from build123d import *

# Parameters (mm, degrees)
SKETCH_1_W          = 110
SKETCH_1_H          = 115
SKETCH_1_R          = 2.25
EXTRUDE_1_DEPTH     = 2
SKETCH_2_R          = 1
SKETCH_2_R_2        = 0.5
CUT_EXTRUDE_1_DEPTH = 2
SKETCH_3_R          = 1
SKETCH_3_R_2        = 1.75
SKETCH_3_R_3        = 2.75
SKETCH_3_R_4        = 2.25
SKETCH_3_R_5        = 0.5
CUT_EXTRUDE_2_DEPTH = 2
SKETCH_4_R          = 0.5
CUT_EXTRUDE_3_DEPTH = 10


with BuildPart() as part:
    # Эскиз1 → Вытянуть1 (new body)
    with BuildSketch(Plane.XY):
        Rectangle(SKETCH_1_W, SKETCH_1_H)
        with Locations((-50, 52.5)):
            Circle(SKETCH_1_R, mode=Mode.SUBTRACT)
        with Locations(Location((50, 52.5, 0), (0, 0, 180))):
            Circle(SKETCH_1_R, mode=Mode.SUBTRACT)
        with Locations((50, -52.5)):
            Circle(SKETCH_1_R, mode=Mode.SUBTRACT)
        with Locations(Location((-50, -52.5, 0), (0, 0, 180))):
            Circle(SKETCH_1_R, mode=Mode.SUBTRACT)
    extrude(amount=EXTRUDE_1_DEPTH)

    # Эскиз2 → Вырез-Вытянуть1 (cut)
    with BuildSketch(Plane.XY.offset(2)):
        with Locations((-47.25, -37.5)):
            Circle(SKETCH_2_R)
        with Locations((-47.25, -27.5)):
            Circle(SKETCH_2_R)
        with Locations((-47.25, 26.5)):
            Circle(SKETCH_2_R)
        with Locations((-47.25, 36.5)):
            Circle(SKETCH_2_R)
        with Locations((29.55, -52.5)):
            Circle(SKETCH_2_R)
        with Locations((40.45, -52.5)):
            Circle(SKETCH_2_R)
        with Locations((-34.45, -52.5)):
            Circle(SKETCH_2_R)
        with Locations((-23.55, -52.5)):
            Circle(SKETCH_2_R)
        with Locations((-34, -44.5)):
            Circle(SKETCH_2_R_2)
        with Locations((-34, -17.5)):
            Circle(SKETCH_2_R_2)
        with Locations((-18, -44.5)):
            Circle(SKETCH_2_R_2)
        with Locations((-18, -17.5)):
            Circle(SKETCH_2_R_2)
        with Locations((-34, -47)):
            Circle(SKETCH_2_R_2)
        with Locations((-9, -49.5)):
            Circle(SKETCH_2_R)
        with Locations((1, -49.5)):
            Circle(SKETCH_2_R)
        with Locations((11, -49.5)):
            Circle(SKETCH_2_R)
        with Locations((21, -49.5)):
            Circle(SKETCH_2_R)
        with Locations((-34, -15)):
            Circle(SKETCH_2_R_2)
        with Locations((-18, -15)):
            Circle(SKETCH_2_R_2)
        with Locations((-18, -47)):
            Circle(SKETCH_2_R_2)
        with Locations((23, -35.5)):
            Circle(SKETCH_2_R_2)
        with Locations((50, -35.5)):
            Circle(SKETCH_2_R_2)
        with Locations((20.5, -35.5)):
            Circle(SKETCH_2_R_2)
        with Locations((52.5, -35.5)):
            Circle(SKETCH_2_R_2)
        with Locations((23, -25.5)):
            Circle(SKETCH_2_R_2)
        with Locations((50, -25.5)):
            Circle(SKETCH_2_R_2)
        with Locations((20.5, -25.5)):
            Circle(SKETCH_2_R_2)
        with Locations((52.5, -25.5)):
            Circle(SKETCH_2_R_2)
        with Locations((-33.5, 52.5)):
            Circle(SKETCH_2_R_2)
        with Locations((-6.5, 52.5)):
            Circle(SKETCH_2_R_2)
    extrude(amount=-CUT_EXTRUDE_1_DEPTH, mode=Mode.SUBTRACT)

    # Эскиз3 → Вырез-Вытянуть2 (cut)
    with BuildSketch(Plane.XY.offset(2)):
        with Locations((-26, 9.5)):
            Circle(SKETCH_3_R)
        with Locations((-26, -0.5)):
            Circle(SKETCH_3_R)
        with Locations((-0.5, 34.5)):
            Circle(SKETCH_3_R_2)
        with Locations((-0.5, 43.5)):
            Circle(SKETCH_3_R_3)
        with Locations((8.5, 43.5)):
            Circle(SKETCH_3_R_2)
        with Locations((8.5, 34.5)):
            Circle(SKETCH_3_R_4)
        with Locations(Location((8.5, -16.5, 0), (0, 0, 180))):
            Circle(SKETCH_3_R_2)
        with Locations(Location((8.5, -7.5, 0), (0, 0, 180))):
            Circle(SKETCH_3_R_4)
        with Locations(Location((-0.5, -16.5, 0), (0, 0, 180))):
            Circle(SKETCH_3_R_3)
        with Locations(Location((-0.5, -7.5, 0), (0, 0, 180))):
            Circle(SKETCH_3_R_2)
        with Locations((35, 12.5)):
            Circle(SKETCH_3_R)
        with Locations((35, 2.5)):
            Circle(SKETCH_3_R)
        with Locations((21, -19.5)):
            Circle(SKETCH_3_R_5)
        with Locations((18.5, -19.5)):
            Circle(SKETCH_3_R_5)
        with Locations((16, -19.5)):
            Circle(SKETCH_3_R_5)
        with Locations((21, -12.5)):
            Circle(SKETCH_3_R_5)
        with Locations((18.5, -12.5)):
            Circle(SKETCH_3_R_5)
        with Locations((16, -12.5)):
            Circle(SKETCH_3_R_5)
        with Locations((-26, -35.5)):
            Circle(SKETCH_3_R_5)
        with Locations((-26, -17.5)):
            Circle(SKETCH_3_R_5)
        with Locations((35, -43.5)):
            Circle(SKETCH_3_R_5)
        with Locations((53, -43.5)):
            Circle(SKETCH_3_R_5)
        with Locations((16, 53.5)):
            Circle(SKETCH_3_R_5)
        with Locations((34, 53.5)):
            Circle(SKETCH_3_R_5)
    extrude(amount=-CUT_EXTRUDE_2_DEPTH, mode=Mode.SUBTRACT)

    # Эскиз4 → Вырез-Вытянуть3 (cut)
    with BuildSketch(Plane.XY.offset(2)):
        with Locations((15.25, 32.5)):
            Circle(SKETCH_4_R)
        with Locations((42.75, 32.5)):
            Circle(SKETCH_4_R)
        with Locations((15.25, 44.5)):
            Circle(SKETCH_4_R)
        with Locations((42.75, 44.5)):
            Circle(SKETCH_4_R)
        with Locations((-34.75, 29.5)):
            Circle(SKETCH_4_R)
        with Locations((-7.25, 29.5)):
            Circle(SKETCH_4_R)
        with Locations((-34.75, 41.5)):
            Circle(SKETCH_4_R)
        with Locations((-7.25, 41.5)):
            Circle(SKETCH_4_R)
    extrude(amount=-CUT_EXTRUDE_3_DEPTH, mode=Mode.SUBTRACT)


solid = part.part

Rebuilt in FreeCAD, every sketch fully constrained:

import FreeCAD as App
import Part
import Sketcher
Q = App.Units.Quantity


def add_polygon(sketch, points):
    """Adds a closed chain of lines whose ends are joined by coincident constraints."""
    first, n = sketch.GeometryCount, len(points)
    for a, b in zip(points, points[1:] + points[:1]):
        sketch.addGeometry(Part.LineSegment(App.Vector(*a, 0), App.Vector(*b, 0)), False)
    for i in range(n):
        sketch.addConstraint(Sketcher.Constraint("Coincident", first + i, 2, first + (i + 1) % n, 1))

doc = App.newDocument("Part")
params = doc.addObject("Spreadsheet::Sheet", "Params")
for row, (alias, value) in enumerate([
    ("sketch1_diameter", "4.5 mm"),
    ("sketch1_width", "110 mm"),
    ("sketch1_height", "115 mm"),
    ("pad1_length", "2 mm"),
    ("sketch2_diameter", "2 mm"),
    ("sketch2_diameter2", "1 mm"),
    ("pocket1_length", "2 mm"),
    ("sketch3_diameter", "2 mm"),
    ("sketch3_diameter2", "1 mm"),
    ("sketch3_diameter3", "3.5 mm"),
    ("sketch3_diameter4", "5.5 mm"),
    ("sketch3_diameter5", "4.5 mm"),
    ("pocket2_length", "2 mm"),
    ("sketch4_diameter", "1 mm"),
    ("pocket3_length", "10 mm"),
], start=1):
    params.set(f"A{row}", alias)
    params.set(f"B{row}", "=" + value)
    params.setAlias(f"B{row}", alias)

body = doc.addObject("PartDesign::Body", "Body")

# Sketch on XY plane
sketch1 = body.newObject("Sketcher::SketchObject", "Sketch")
sketch1.AttachmentSupport = (doc.getObject("XY_Plane"), [""])
sketch1.MapMode = "FlatFace"
add_polygon(sketch1, [(-55, 57.5), (-55, -57.5), (55, -57.5), (55, 57.5)])  # lines 0-3
sketch1.addGeometry(Part.Circle(App.Vector(-50, -52.5, 0), App.Vector(0, 0, 1), 2.2), False)  # 4
sketch1.addGeometry(Part.Circle(App.Vector(50, -52.5, 0), App.Vector(0, 0, 1), 2.2), False)  # 5
sketch1.addGeometry(Part.Circle(App.Vector(-50, 52.5, 0), App.Vector(0, 0, 1), 2.2), False)  # 6
sketch1.addGeometry(Part.Circle(App.Vector(50, 52.5, 0), App.Vector(0, 0, 1), 2.2), False)  # 7
sketch1.addConstraint([
    Sketcher.Constraint("Vertical", 0),
    Sketcher.Constraint("Horizontal", 1),
    Sketcher.Constraint("Vertical", 2),
    Sketcher.Constraint("Horizontal", 3),
    Sketcher.Constraint("Equal", 4, 5),
    Sketcher.Constraint("Equal", 5, 6),
    Sketcher.Constraint("Equal", 6, 7),
    Sketcher.Constraint("Symmetric", 5, 3, 6, 3, -1, 1),
    Sketcher.Constraint("Symmetric", 4, 3, 7, 3, -1, 1),
    Sketcher.Constraint("Symmetric", 0, 2, 2, 2, -1, 1),
    Sketcher.Constraint("Symmetric", 4, 3, 5, 3, -2),
    Sketcher.Constraint("Diameter", 4, Q("4.5 mm")),
    Sketcher.Constraint("DistanceX", 1, 1, 1, 2, Q("110 mm")),
    Sketcher.Constraint("DistanceY", 0, 2, 0, 1, Q("115 mm")),
    Sketcher.Constraint("DistanceX", 4, 3, -1, 1, Q("50 mm")),
    Sketcher.Constraint("DistanceY", 4, 3, 6, 3, Q("105 mm")),
])
sketch1.setExpression("Constraints[15]", "Params.sketch1_diameter")
sketch1.setExpression("Constraints[16]", "Params.sketch1_width")
sketch1.setExpression("Constraints[17]", "Params.sketch1_height")
pad1 = body.newObject("PartDesign::Pad", "Pad")
pad1.Profile = sketch1
pad1.setExpression("Length", "Params.pad1_length")

# Sketch on XY plane
sketch2 = body.newObject("Sketcher::SketchObject", "Sketch001")
sketch2.AttachmentSupport = (doc.getObject("XY_Plane"), [""])
sketch2.MapMode = "FlatFace"
sketch2.AttachmentOffset = App.Placement(App.Vector(0, 0, 2), App.Rotation())
sketch2.addGeometry([
    Part.Circle(App.Vector(-47.2, -37.5, 0), App.Vector(0, 0, 1), 1),  # 0
    Part.Circle(App.Vector(-47.2, -27.5, 0), App.Vector(0, 0, 1), 1),  # 1
    Part.Circle(App.Vector(-47.2, 26.5, 0), App.Vector(0, 0, 1), 1),  # 2
    Part.Circle(App.Vector(-47.2, 36.5, 0), App.Vector(0, 0, 1), 1),  # 3
    Part.Circle(App.Vector(29.6, -52.5, 0), App.Vector(0, 0, 1), 1),  # 4
    Part.Circle(App.Vector(40.5, -52.5, 0), App.Vector(0, 0, 1), 1),  # 5
    Part.Circle(App.Vector(-34.5, -52.5, 0), App.Vector(0, 0, 1), 1),  # 6
    Part.Circle(App.Vector(-23.6, -52.5, 0), App.Vector(0, 0, 1), 1),  # 7
    Part.Circle(App.Vector(-34, -44.5, 0), App.Vector(0, 0, 1), 0.5),  # 8
    Part.Circle(App.Vector(-34, -17.5, 0), App.Vector(0, 0, 1), 0.5),  # 9
    Part.Circle(App.Vector(-18, -44.5, 0), App.Vector(0, 0, 1), 0.5),  # 10
    Part.Circle(App.Vector(-18, -17.5, 0), App.Vector(0, 0, 1), 0.5),  # 11
    Part.Circle(App.Vector(-34, -47, 0), App.Vector(0, 0, 1), 0.5),  # 12
    Part.Circle(App.Vector(-9, -49.5, 0), App.Vector(0, 0, 1), 1),  # 13
    Part.Circle(App.Vector(1, -49.5, 0), App.Vector(0, 0, 1), 1),  # 14
    Part.Circle(App.Vector(11, -49.5, 0), App.Vector(0, 0, 1), 1),  # 15
    Part.Circle(App.Vector(21, -49.5, 0), App.Vector(0, 0, 1), 1),  # 16
    Part.Circle(App.Vector(-34, -15, 0), App.Vector(0, 0, 1), 0.5),  # 17
    Part.Circle(App.Vector(-18, -15, 0), App.Vector(0, 0, 1), 0.5),  # 18
    Part.Circle(App.Vector(-18, -47, 0), App.Vector(0, 0, 1), 0.5),  # 19
    Part.Circle(App.Vector(23, -35.5, 0), App.Vector(0, 0, 1), 0.5),  # 20
    Part.Circle(App.Vector(50, -35.5, 0), App.Vector(0, 0, 1), 0.5),  # 21
    Part.Circle(App.Vector(20.5, -35.5, 0), App.Vector(0, 0, 1), 0.5),  # 22
    Part.Circle(App.Vector(52.5, -35.5, 0), App.Vector(0, 0, 1), 0.5),  # 23
    Part.Circle(App.Vector(23, -25.5, 0), App.Vector(0, 0, 1), 0.5),  # 24
    Part.Circle(App.Vector(50, -25.5, 0), App.Vector(0, 0, 1), 0.5),  # 25
    Part.Circle(App.Vector(20.5, -25.5, 0), App.Vector(0, 0, 1), 0.5),  # 26
    Part.Circle(App.Vector(52.5, -25.5, 0), App.Vector(0, 0, 1), 0.5),  # 27
    Part.Circle(App.Vector(-33.5, 52.5, 0), App.Vector(0, 0, 1), 0.5),  # 28
    Part.Circle(App.Vector(-6.5, 52.5, 0), App.Vector(0, 0, 1), 0.5),  # 29
], False)
sketch2.addConstraint([
    Sketcher.Constraint("Equal", 0, 1),
    Sketcher.Constraint("Equal", 1, 2),
    Sketcher.Constraint("Equal", 2, 3),
    Sketcher.Constraint("Equal", 3, 4),
    Sketcher.Constraint("Equal", 4, 5),
    Sketcher.Constraint("Equal", 5, 6),
    Sketcher.Constraint("Equal", 6, 7),
    Sketcher.Constraint("Equal", 8, 9),
    Sketcher.Constraint("Equal", 9, 10),
    Sketcher.Constraint("Equal", 10, 11),
    Sketcher.Constraint("Equal", 11, 12),
    Sketcher.Constraint("Equal", 7, 13),
    Sketcher.Constraint("Equal", 13, 14),
    Sketcher.Constraint("Equal", 14, 15),
    Sketcher.Constraint("Equal", 15, 16),
    Sketcher.Constraint("Equal", 12, 17),
    Sketcher.Constraint("Equal", 17, 18),
    Sketcher.Constraint("Equal", 18, 19),
    Sketcher.Constraint("Equal", 19, 20),
    Sketcher.Constraint("Equal", 20, 21),
    Sketcher.Constraint("Equal", 21, 22),
    Sketcher.Constraint("Equal", 22, 23),
    Sketcher.Constraint("Equal", 23, 24),
    Sketcher.Constraint("Equal", 24, 25),
    Sketcher.Constraint("Equal", 25, 26),
    Sketcher.Constraint("Equal", 26, 27),
    Sketcher.Constraint("Equal", 27, 28),
    Sketcher.Constraint("Equal", 28, 29),
    Sketcher.Constraint("Horizontal", 4, 3, 5, 3),
    Sketcher.Constraint("Horizontal", 5, 3, 6, 3),
    Sketcher.Constraint("Horizontal", 6, 3, 7, 3),
    Sketcher.Constraint("Horizontal", 8, 3, 10, 3),
    Sketcher.Constraint("Horizontal", 9, 3, 11, 3),
    Sketcher.Constraint("Horizontal", 13, 3, 14, 3),
    Sketcher.Constraint("Horizontal", 14, 3, 15, 3),
    Sketcher.Constraint("Horizontal", 15, 3, 16, 3),
    Sketcher.Constraint("Horizontal", 17, 3, 18, 3),
    Sketcher.Constraint("Horizontal", 12, 3, 19, 3),
    Sketcher.Constraint("Horizontal", 20, 3, 21, 3),
    Sketcher.Constraint("Horizontal", 21, 3, 22, 3),
    Sketcher.Constraint("Horizontal", 22, 3, 23, 3),
    Sketcher.Constraint("Horizontal", 24, 3, 25, 3),
    Sketcher.Constraint("Horizontal", 25, 3, 26, 3),
    Sketcher.Constraint("Horizontal", 26, 3, 27, 3),
    Sketcher.Constraint("Horizontal", 28, 3, 29, 3),
    Sketcher.Constraint("Vertical", 0, 3, 1, 3),
    Sketcher.Constraint("Vertical", 1, 3, 2, 3),
    Sketcher.Constraint("Vertical", 2, 3, 3, 3),
    Sketcher.Constraint("Vertical", 8, 3, 9, 3),
    Sketcher.Constraint("Vertical", 10, 3, 11, 3),
    Sketcher.Constraint("Vertical", 9, 3, 12, 3),
    Sketcher.Constraint("Vertical", 12, 3, 17, 3),
    Sketcher.Constraint("Vertical", 11, 3, 18, 3),
    Sketcher.Constraint("Vertical", 18, 3, 19, 3),
    Sketcher.Constraint("Vertical", 20, 3, 24, 3),
    Sketcher.Constraint("Vertical", 21, 3, 25, 3),
    Sketcher.Constraint("Vertical", 22, 3, 26, 3),
    Sketcher.Constraint("Vertical", 23, 3, 27, 3),
    Sketcher.Constraint("Diameter", 0, Q("2 mm")),
    Sketcher.Constraint("Diameter", 8, Q("1 mm")),
    Sketcher.Constraint("DistanceX", 8, 3, -1, 1, Q("34 mm")),
    Sketcher.Constraint("DistanceX", 10, 3, -1, 1, Q("18 mm")),
    Sketcher.Constraint("DistanceY", 12, 3, -1, 1, Q("47 mm")),
    Sketcher.Constraint("DistanceX", 13, 3, -1, 1, Q("9 mm")),
    Sketcher.Constraint("DistanceX", -1, 1, 14, 3, Q("1 mm")),
    Sketcher.Constraint("DistanceX", -1, 1, 15, 3, Q("11 mm")),
    Sketcher.Constraint("DistanceX", -1, 1, 16, 3, Q("21 mm")),
    Sketcher.Constraint("DistanceY", 17, 3, -1, 1, Q("15 mm")),
    Sketcher.Constraint("DistanceX", -1, 1, 20, 3, Q("23 mm")),
    Sketcher.Constraint("DistanceX", -1, 1, 21, 3, Q("50 mm")),
    Sketcher.Constraint("DistanceY", 0, 3, 1, 3, Q("10 mm")),
    Sketcher.Constraint("DistanceY", 1, 3, 2, 3, Q("54 mm")),
    Sketcher.Constraint("DistanceY", 2, 3, 3, 3, Q("10 mm")),
    Sketcher.Constraint("DistanceY", 4, 3, 0, 3, Q("15 mm")),
    Sketcher.Constraint("DistanceX", 6, 3, 4, 3, Q("64 mm")),
    Sketcher.Constraint("DistanceX", 7, 3, 5, 3, Q("64 mm")),
    Sketcher.Constraint("DistanceY", 6, 3, 8, 3, Q("8 mm")),
    Sketcher.Constraint("DistanceY", 1, 3, 9, 3, Q("10 mm")),
    Sketcher.Constraint("DistanceY", 13, 3, 10, 3, Q("5 mm")),
    Sketcher.Constraint("DistanceY", 16, 3, 20, 3, Q("14 mm")),
    Sketcher.Constraint("DistanceX", 22, 3, 23, 3, Q("32 mm")),
    Sketcher.Constraint("DistanceY", 20, 3, 24, 3, Q("10 mm")),
    Sketcher.Constraint("DistanceY", 3, 3, 28, 3, Q("16 mm")),
    Sketcher.Constraint("DistanceX", 28, 3, 29, 3, Q("27 mm")),
    Sketcher.Constraint("DistanceY", 0, 3, -1, 1, Q("37.5 mm")),
    Sketcher.Constraint("DistanceX", -1, 1, 22, 3, Q("20.5 mm")),
    Sketcher.Constraint("DistanceX", 28, 3, -1, 1, Q("33.5 mm")),
    Sketcher.Constraint("DistanceX", 0, 3, 4, 3, Q("76.8 mm")),
    Sketcher.Constraint("DistanceX", 4, 3, 5, 3, Q("10.9 mm")),
    Sketcher.Constraint("DistanceX", 0, 3, -1, 1, Q("47.25 mm")),
])
sketch2.setExpression("Constraints[58]", "Params.sketch2_diameter")
sketch2.setExpression("Constraints[59]", "Params.sketch2_diameter2")
pocket1 = body.newObject("PartDesign::Pocket", "Pocket")
pocket1.Profile = sketch2
pocket1.setExpression("Length", "Params.pocket1_length")

# Sketch on XY plane
sketch3 = body.newObject("Sketcher::SketchObject", "Sketch002")
sketch3.AttachmentSupport = (doc.getObject("XY_Plane"), [""])
sketch3.MapMode = "FlatFace"
sketch3.AttachmentOffset = App.Placement(App.Vector(0, 0, 2), App.Rotation())
sketch3.addGeometry([
    Part.Circle(App.Vector(-26, 9.5, 0), App.Vector(0, 0, 1), 1),  # 0
    Part.Circle(App.Vector(-26, -0.5, 0), App.Vector(0, 0, 1), 1),  # 1
    Part.Circle(App.Vector(-0.5, 34.5, 0), App.Vector(0, 0, 1), 1.8),  # 2
    Part.Circle(App.Vector(-0.5, 43.5, 0), App.Vector(0, 0, 1), 2.8),  # 3
    Part.Circle(App.Vector(8.5, 43.5, 0), App.Vector(0, 0, 1), 1.8),  # 4
    Part.Circle(App.Vector(8.5, 34.5, 0), App.Vector(0, 0, 1), 2.2),  # 5
    Part.Circle(App.Vector(8.5, -16.5, 0), App.Vector(0, 0, 1), 1.8),  # 6
    Part.Circle(App.Vector(8.5, -7.5, 0), App.Vector(0, 0, 1), 2.2),  # 7
    Part.Circle(App.Vector(-0.5, -16.5, 0), App.Vector(0, 0, 1), 2.8),  # 8
    Part.Circle(App.Vector(-0.5, -7.5, 0), App.Vector(0, 0, 1), 1.8),  # 9
    Part.Circle(App.Vector(35, 12.5, 0), App.Vector(0, 0, 1), 1),  # 10
    Part.Circle(App.Vector(35, 2.5, 0), App.Vector(0, 0, 1), 1),  # 11
    Part.Circle(App.Vector(21, -19.5, 0), App.Vector(0, 0, 1), 0.5),  # 12
    Part.Circle(App.Vector(18.5, -19.5, 0), App.Vector(0, 0, 1), 0.5),  # 13
    Part.Circle(App.Vector(16, -19.5, 0), App.Vector(0, 0, 1), 0.5),  # 14
    Part.Circle(App.Vector(21, -12.5, 0), App.Vector(0, 0, 1), 0.5),  # 15
    Part.Circle(App.Vector(18.5, -12.5, 0), App.Vector(0, 0, 1), 0.5),  # 16
    Part.Circle(App.Vector(16, -12.5, 0), App.Vector(0, 0, 1), 0.5),  # 17
    Part.Circle(App.Vector(-26, -35.5, 0), App.Vector(0, 0, 1), 0.5),  # 18
    Part.Circle(App.Vector(-26, -17.5, 0), App.Vector(0, 0, 1), 0.5),  # 19
    Part.Circle(App.Vector(35, -43.5, 0), App.Vector(0, 0, 1), 0.5),  # 20
    Part.Circle(App.Vector(53, -43.5, 0), App.Vector(0, 0, 1), 0.5),  # 21
    Part.Circle(App.Vector(16, 53.5, 0), App.Vector(0, 0, 1), 0.5),  # 22
    Part.Circle(App.Vector(34, 53.5, 0), App.Vector(0, 0, 1), 0.5),  # 23
], False)
sketch3.addConstraint([
    Sketcher.Constraint("Equal", 0, 1),
    Sketcher.Constraint("Equal", 2, 4),
    Sketcher.Constraint("Equal", 4, 6),
    Sketcher.Constraint("Equal", 5, 7),
    Sketcher.Constraint("Equal", 3, 8),
    Sketcher.Constraint("Equal", 6, 9),
    Sketcher.Constraint("Equal", 1, 10),
    Sketcher.Constraint("Equal", 10, 11),
    Sketcher.Constraint("Equal", 12, 13),
    Sketcher.Constraint("Equal", 13, 14),
    Sketcher.Constraint("Equal", 14, 15),
    Sketcher.Constraint("Equal", 15, 16),
    Sketcher.Constraint("Equal", 16, 17),
    Sketcher.Constraint("Equal", 17, 18),
    Sketcher.Constraint("Equal", 18, 19),
    Sketcher.Constraint("Equal", 19, 20),
    Sketcher.Constraint("Equal", 20, 21),
    Sketcher.Constraint("Equal", 21, 22),
    Sketcher.Constraint("Equal", 22, 23),
    Sketcher.Constraint("Horizontal", 3, 3, 4, 3),
    Sketcher.Constraint("Horizontal", 2, 3, 5, 3),
    Sketcher.Constraint("Horizontal", 6, 3, 8, 3),
    Sketcher.Constraint("Horizontal", 7, 3, 9, 3),
    Sketcher.Constraint("Horizontal", 12, 3, 13, 3),
    Sketcher.Constraint("Horizontal", 13, 3, 14, 3),
    Sketcher.Constraint("Horizontal", 15, 3, 16, 3),
    Sketcher.Constraint("Horizontal", 16, 3, 17, 3),
    Sketcher.Constraint("Horizontal", 20, 3, 21, 3),
    Sketcher.Constraint("Horizontal", 22, 3, 23, 3),
    Sketcher.Constraint("Vertical", 0, 3, 1, 3),
    Sketcher.Constraint("Vertical", 2, 3, 3, 3),
    Sketcher.Constraint("Vertical", 4, 3, 5, 3),
    Sketcher.Constraint("Vertical", 5, 3, 6, 3),
    Sketcher.Constraint("Vertical", 6, 3, 7, 3),
    Sketcher.Constraint("Vertical", 3, 3, 8, 3),
    Sketcher.Constraint("Vertical", 8, 3, 9, 3),
    Sketcher.Constraint("Vertical", 10, 3, 11, 3),
    Sketcher.Constraint("Vertical", 12, 3, 15, 3),
    Sketcher.Constraint("Vertical", 13, 3, 16, 3),
    Sketcher.Constraint("Vertical", 14, 3, 17, 3),
    Sketcher.Constraint("Vertical", 1, 3, 18, 3),
    Sketcher.Constraint("Vertical", 18, 3, 19, 3),
    Sketcher.Constraint("Vertical", 11, 3, 20, 3),
    Sketcher.Constraint("Vertical", 17, 3, 22, 3),
    Sketcher.Constraint("Diameter", 0, Q("2 mm")),
    Sketcher.Constraint("Diameter", 12, Q("1 mm")),
    Sketcher.Constraint("Diameter", 2, Q("3.5 mm")),
    Sketcher.Constraint("Diameter", 3, Q("5.5 mm")),
    Sketcher.Constraint("Diameter", 5, Q("4.5 mm")),
    Sketcher.Constraint("DistanceX", 0, 3, -1, 1, Q("26 mm")),
    Sketcher.Constraint("DistanceX", -1, 1, 10, 3, Q("35 mm")),
    Sketcher.Constraint("DistanceX", -1, 1, 12, 3, Q("21 mm")),
    Sketcher.Constraint("DistanceX", -1, 1, 14, 3, Q("16 mm")),
    Sketcher.Constraint("DistanceX", -1, 1, 21, 3, Q("53 mm")),
    Sketcher.Constraint("DistanceX", -1, 1, 23, 3, Q("34 mm")),
    Sketcher.Constraint("DistanceY", 1, 3, 0, 3, Q("10 mm")),
    Sketcher.Constraint("DistanceY", 0, 3, 2, 3, Q("25 mm")),
    Sketcher.Constraint("DistanceY", 2, 3, 3, 3, Q("9 mm")),
    Sketcher.Constraint("DistanceX", 3, 3, 4, 3, Q("9 mm")),
    Sketcher.Constraint("DistanceY", 6, 3, 1, 3, Q("16 mm")),
    Sketcher.Constraint("DistanceY", 6, 3, 7, 3, Q("9 mm")),
    Sketcher.Constraint("DistanceY", 7, 3, 10, 3, Q("20 mm")),
    Sketcher.Constraint("DistanceY", 11, 3, 10, 3, Q("10 mm")),
    Sketcher.Constraint("DistanceY", 12, 3, 6, 3, Q("3 mm")),
    Sketcher.Constraint("DistanceX", 6, 3, 13, 3, Q("10 mm")),
    Sketcher.Constraint("DistanceY", 12, 3, 15, 3, Q("7 mm")),
    Sketcher.Constraint("DistanceY", 18, 3, 8, 3, Q("19 mm")),
    Sketcher.Constraint("DistanceY", 19, 3, 1, 3, Q("17 mm")),
    Sketcher.Constraint("DistanceY", 20, 3, 12, 3, Q("24 mm")),
    Sketcher.Constraint("DistanceY", 4, 3, 22, 3, Q("10 mm")),
    Sketcher.Constraint("DistanceY", -1, 1, 0, 3, Q("9.5 mm")),
    Sketcher.Constraint("DistanceX", 2, 3, -1, 1, Q("0.5 mm")),
])
sketch3.setExpression("Constraints[44]", "Params.sketch3_diameter")
sketch3.setExpression("Constraints[45]", "Params.sketch3_diameter2")
sketch3.setExpression("Constraints[46]", "Params.sketch3_diameter3")
sketch3.setExpression("Constraints[47]", "Params.sketch3_diameter4")
sketch3.setExpression("Constraints[48]", "Params.sketch3_diameter5")
pocket2 = body.newObject("PartDesign::Pocket", "Pocket001")
pocket2.Profile = sketch3
pocket2.setExpression("Length", "Params.pocket2_length")

# Sketch on XY plane
sketch4 = body.newObject("Sketcher::SketchObject", "Sketch003")
sketch4.AttachmentSupport = (doc.getObject("XY_Plane"), [""])
sketch4.MapMode = "FlatFace"
sketch4.AttachmentOffset = App.Placement(App.Vector(0, 0, 2), App.Rotation())
sketch4.addGeometry([
    Part.Circle(App.Vector(15.2, 32.5, 0), App.Vector(0, 0, 1), 0.5),  # 0
    Part.Circle(App.Vector(42.8, 32.5, 0), App.Vector(0, 0, 1), 0.5),  # 1
    Part.Circle(App.Vector(15.2, 44.5, 0), App.Vector(0, 0, 1), 0.5),  # 2
    Part.Circle(App.Vector(42.8, 44.5, 0), App.Vector(0, 0, 1), 0.5),  # 3
    Part.Circle(App.Vector(-34.8, 29.5, 0), App.Vector(0, 0, 1), 0.5),  # 4
    Part.Circle(App.Vector(-7.2, 29.5, 0), App.Vector(0, 0, 1), 0.5),  # 5
    Part.Circle(App.Vector(-34.8, 41.5, 0), App.Vector(0, 0, 1), 0.5),  # 6
    Part.Circle(App.Vector(-7.2, 41.5, 0), App.Vector(0, 0, 1), 0.5),  # 7
], False)
sketch4.addConstraint([
    Sketcher.Constraint("Equal", 0, 1),
    Sketcher.Constraint("Equal", 1, 2),
    Sketcher.Constraint("Equal", 2, 3),
    Sketcher.Constraint("Equal", 3, 4),
    Sketcher.Constraint("Equal", 4, 5),
    Sketcher.Constraint("Equal", 5, 6),
    Sketcher.Constraint("Equal", 6, 7),
    Sketcher.Constraint("Horizontal", 0, 3, 1, 3),
    Sketcher.Constraint("Horizontal", 2, 3, 3, 3),
    Sketcher.Constraint("Horizontal", 4, 3, 5, 3),
    Sketcher.Constraint("Horizontal", 6, 3, 7, 3),
    Sketcher.Constraint("Vertical", 0, 3, 2, 3),
    Sketcher.Constraint("Vertical", 1, 3, 3, 3),
    Sketcher.Constraint("Vertical", 4, 3, 6, 3),
    Sketcher.Constraint("Vertical", 5, 3, 7, 3),
    Sketcher.Constraint("Diameter", 0, Q("1 mm")),
    Sketcher.Constraint("DistanceY", 0, 3, 2, 3, Q("12 mm")),
    Sketcher.Constraint("DistanceX", 4, 3, 0, 3, Q("50 mm")),
    Sketcher.Constraint("DistanceY", 4, 3, 0, 3, Q("3 mm")),
    Sketcher.Constraint("DistanceX", 5, 3, 1, 3, Q("50 mm")),
    Sketcher.Constraint("DistanceY", 4, 3, 6, 3, Q("12 mm")),
    Sketcher.Constraint("DistanceY", -1, 1, 0, 3, Q("32.5 mm")),
    Sketcher.Constraint("DistanceX", 0, 3, 1, 3, Q("27.5 mm")),
    Sketcher.Constraint("DistanceX", -1, 1, 0, 3, Q("15.25 mm")),
])
sketch4.setExpression("Constraints[15]", "Params.sketch4_diameter")
pocket3 = body.newObject("PartDesign::Pocket", "Pocket002")
pocket3.Profile = sketch4
pocket3.setExpression("Length", "Params.pocket3_length")

doc.recompute()
